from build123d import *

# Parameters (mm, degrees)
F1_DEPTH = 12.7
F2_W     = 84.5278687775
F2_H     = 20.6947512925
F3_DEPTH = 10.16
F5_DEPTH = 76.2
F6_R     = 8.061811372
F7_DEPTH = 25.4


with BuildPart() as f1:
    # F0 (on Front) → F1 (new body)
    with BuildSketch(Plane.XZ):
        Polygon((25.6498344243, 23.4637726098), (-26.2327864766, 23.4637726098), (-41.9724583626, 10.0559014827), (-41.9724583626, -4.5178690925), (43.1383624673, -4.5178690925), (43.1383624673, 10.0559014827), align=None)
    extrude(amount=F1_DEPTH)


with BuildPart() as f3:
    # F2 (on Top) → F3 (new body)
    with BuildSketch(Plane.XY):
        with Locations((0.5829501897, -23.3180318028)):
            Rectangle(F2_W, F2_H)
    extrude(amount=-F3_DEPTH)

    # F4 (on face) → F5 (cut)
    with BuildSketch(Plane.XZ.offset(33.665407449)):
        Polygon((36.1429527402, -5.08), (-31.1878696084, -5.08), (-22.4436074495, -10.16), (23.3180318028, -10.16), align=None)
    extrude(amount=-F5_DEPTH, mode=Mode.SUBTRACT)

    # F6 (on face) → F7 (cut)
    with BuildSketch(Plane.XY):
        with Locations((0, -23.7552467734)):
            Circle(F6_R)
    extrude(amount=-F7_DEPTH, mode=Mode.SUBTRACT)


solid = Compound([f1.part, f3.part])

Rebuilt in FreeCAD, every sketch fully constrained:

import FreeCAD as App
import Part
import Sketcher
from FreeCAD import Vector
Q = App.Units.Quantity


def add_polygon(sketch, points):
    """Adds a closed chain of lines whose ends are joined by coincident constraints."""
    first, n = sketch.GeometryCount, len(points)
    for a, b in zip(points, points[1:] + points[:1]):
        sketch.addGeometry(Part.LineSegment(App.Vector(*a, 0), App.Vector(*b, 0)), False)
    for i in range(n):
        sketch.addConstraint(Sketcher.Constraint("Coincident", first + i, 2, first + (i + 1) % n, 1))

doc = App.newDocument("Part")
body = doc.addObject("PartDesign::Body", "Body")

# Sketch on XZ plane
sketch1 = body.newObject("Sketcher::SketchObject", "Sketch")
sketch1.AttachmentSupport = (doc.getObject("XZ_Plane"), [""])
sketch1.MapMode = "FlatFace"
add_polygon(sketch1, [(26, 23), (-26, 23), (-42, 10), (-42, -5), (43, -5), (43, 10)])  # lines 0-5
sketch1.addConstraint(Sketcher.Constraint("Horizontal", 0))
sketch1.addConstraint(Sketcher.Constraint("Vertical", 2))
sketch1.addConstraint(Sketcher.Constraint("Horizontal", 3))
sketch1.addConstraint(Sketcher.Constraint("Vertical", 4))
sketch1.addConstraint(Sketcher.Constraint("Horizontal", 1, 2, 4, 2))
sketch1.addConstraint(Sketcher.Constraint("DistanceX", 0, 2, 0, 1, Q("51.882621 mm")))
sketch1.addConstraint(Sketcher.Constraint("DistanceX", 3, 1, 3, 2, Q("85.110821 mm")))
sketch1.addConstraint(Sketcher.Constraint("DistanceY", 2, 2, 2, 1, Q("14.573771 mm")))
sketch1.addConstraint(Sketcher.Constraint("DistanceY", -1, 1, 1, 2, Q("10.055901 mm")))
sketch1.addConstraint(Sketcher.Constraint("Distance", 5, Q("22.036779 mm")))
sketch1.addConstraint(Sketcher.Constraint("DistanceX", 1, 2, -1, 1, Q("41.972458 mm")))
sketch1.addConstraint(Sketcher.Constraint("DistanceX", 1, 2, 0, 2, Q("15.739672 mm")))
pad1 = body.newObject("PartDesign::Pad", "Pad")
pad1.Profile = sketch1
pad1.Length = Q("0.5 in")
body2 = doc.addObject("PartDesign::Body", "Body001")

# Sketch on XY plane
sketch2 = body2.newObject("Sketcher::SketchObject", "Sketch001")
sketch2.AttachmentSupport = (doc.getObject("XY_Plane001"), [""])
sketch2.MapMode = "FlatFace"
add_polygon(sketch2, [(-42, -13), (-42, -34), (43, -34), (43, -13)])  # lines 0-3
sketch2.addConstraint(Sketcher.Constraint("Vertical", 0))
sketch2.addConstraint(Sketcher.Constraint("Horizontal", 1))
sketch2.addConstraint(Sketcher.Constraint("Vertical", 2))
sketch2.addConstraint(Sketcher.Constraint("Horizontal", 3))
sketch2.addConstraint(Sketcher.Constraint("DistanceX", 1, 1, 1, 2, Q("84.527869 mm")))
sketch2.addConstraint(Sketcher.Constraint("DistanceY", 0, 2, 0, 1, Q("20.694751 mm")))
sketch2.addConstraint(Sketcher.Constraint("DistanceX", 0, 2, -1, 1, Q("41.680984 mm")))
sketch2.addConstraint(Sketcher.Constraint("DistanceY", 0, 2, -1, 1, Q("33.665407 mm")))
pad2 = body2.newObject("PartDesign::Pad", "Pad001")
pad2.Profile = sketch2
pad2.Length = Q("0.4 in")
pad2.Reversed = True

# Sketch on XZ plane
sketch3 = body2.newObject("Sketcher::SketchObject", "Sketch002")
sketch3.AttachmentSupport = (doc.getObject("XZ_Plane001"), [""])
sketch3.MapMode = "FlatFace"
sketch3.AttachmentOffset = App.Placement(Vector(0, 0, 33.665407), App.Rotation())
add_polygon(sketch3, [(36, -5), (-31, -5), (-22, -10), (23, -10)])  # lines 0-3
sketch3.addConstraint(Sketcher.Constraint("Horizontal", 0))
sketch3.addConstraint(Sketcher.Constraint("Horizontal", 2))
sketch3.addConstraint(Sketcher.Constraint("DistanceY", 0, 2, -1, 1, Q("0.2 in")))
sketch3.addConstraint(Sketcher.Constraint("DistanceY", 1, 2, -1, 1, Q("0.4 in")))
sketch3.addConstraint(Sketcher.Constraint("DistanceX", 2, 1, 2, 2, Q("45.761639 mm")))
sketch3.addConstraint(Sketcher.Constraint("DistanceX", 0, 2, 2, 2, Q("54.505901 mm")))
sketch3.addConstraint(Sketcher.Constraint("DistanceX", 0, 2, 0, 1, Q("67.330822 mm")))
sketch3.addConstraint(Sketcher.Constraint("DistanceX", 0, 2, -1, 1, Q("31.18787 mm")))
pocket1 = body2.newObject("PartDesign::Pocket", "Pocket")
pocket1.Profile = sketch3
pocket1.Length = Q("3 in")

# Sketch on XY plane
sketch4 = body2.newObject("Sketcher::SketchObject", "Sketch003")
sketch4.AttachmentSupport = (doc.getObject("XY_Plane001"), [""])
sketch4.MapMode = "FlatFace"
sketch4.addGeometry(Part.Circle(Vector(0, -24, 0), Vector(0, 0, 1), 8), False)
sketch4.addConstraint(Sketcher.Constraint("PointOnObject", 0, 3, -2))
sketch4.addConstraint(Sketcher.Constraint("Diameter", 0, Q("16.123623 mm")))
sketch4.addConstraint(Sketcher.Constraint("DistanceY", 0, 3, -1, 1, Q("23.755247 mm")))
pocket2 = body2.newObject("PartDesign::Pocket", "Pocket001")
pocket2.Profile = sketch4
pocket2.Length = Q("1 in")

doc.recompute()
